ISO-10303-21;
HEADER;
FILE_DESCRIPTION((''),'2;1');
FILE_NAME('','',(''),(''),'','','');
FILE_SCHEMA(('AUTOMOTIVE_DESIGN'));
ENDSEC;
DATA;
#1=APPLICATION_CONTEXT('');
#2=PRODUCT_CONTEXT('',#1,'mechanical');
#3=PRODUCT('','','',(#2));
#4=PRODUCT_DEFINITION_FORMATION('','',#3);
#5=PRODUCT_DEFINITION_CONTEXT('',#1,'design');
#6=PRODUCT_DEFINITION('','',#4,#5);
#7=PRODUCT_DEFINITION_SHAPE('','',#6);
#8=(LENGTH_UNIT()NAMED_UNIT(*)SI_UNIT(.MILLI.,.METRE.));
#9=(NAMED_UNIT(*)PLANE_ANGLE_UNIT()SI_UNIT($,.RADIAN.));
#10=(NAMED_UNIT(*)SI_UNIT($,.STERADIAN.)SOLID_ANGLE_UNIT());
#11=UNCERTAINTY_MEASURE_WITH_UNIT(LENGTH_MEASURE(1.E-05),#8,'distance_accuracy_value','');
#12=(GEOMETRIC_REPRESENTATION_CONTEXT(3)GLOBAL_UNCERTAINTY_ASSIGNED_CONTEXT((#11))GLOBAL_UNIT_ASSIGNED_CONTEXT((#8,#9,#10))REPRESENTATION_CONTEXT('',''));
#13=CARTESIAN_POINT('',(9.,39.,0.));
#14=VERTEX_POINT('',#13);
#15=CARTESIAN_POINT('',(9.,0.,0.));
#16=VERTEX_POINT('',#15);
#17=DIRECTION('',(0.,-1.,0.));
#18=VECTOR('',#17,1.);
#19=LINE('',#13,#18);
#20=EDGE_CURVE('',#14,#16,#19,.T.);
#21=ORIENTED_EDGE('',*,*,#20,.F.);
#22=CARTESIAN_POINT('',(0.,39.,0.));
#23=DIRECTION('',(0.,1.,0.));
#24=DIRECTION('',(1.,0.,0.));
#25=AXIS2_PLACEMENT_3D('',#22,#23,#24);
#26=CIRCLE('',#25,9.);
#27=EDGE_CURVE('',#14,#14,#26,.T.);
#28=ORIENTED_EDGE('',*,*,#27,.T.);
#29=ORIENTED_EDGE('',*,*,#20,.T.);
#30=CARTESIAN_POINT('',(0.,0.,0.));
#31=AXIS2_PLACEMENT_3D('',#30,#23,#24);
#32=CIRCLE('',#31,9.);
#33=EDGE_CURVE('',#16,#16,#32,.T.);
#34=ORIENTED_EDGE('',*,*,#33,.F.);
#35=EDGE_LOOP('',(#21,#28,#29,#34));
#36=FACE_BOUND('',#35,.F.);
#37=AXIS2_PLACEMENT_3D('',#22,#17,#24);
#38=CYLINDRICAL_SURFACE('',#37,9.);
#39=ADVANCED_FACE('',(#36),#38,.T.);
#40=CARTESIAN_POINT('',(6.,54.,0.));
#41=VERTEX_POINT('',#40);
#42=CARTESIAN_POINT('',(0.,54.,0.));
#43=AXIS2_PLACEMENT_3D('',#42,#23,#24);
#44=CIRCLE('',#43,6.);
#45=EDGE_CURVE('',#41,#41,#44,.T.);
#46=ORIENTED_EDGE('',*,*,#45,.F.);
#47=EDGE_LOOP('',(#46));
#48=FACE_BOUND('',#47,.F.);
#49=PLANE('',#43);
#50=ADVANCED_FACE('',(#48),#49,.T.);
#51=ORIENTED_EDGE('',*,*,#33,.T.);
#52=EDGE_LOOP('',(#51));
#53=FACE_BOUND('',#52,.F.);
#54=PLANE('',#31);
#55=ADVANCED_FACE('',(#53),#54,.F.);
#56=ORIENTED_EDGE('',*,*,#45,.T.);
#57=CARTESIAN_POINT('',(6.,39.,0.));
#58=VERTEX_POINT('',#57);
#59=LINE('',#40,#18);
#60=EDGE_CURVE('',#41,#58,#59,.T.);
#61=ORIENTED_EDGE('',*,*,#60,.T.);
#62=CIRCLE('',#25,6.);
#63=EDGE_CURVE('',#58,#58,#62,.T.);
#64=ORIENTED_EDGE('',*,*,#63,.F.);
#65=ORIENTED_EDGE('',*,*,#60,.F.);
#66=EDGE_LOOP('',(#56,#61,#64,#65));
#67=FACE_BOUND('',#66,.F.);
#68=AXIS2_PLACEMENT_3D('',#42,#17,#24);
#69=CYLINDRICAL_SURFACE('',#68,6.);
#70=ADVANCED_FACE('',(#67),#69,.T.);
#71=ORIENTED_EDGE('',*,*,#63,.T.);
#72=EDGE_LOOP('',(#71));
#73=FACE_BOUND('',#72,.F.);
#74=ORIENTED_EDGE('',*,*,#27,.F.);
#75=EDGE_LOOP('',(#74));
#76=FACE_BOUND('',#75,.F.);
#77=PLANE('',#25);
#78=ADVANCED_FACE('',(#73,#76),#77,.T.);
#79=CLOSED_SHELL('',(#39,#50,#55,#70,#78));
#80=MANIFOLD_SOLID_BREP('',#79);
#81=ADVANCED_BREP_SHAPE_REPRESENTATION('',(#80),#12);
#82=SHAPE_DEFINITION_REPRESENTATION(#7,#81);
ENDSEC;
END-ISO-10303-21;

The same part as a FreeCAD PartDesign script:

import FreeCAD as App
import Part
import Sketcher

V = App.Vector


def add_polygon(sketch, points):
    """Adds a closed chain of lines whose ends are joined by coincident constraints."""
    first, n = sketch.GeometryCount, len(points)
    for a, b in zip(points, points[1:] + points[:1]):
        sketch.addGeometry(Part.LineSegment(App.Vector(*a, 0), App.Vector(*b, 0)), False)
    for i in range(n):
        sketch.addConstraint(Sketcher.Constraint("Coincident", first + i, 2, first + (i + 1) % n, 1))

doc = App.newDocument("Part")
body = doc.addObject("PartDesign::Body", "Body")

sketch1 = doc.addObject("Sketcher::SketchObject", "Sketch")
body.addObject(sketch1)
sketch1.AttachmentSupport = (doc.XY_Plane, [""])
sketch1.MapMode = "FlatFace"
add_polygon(sketch1, [(0, 54), (0, 0), (9, 0), (9, 39), (6, 39), (6, 54)])
sketch1.addConstraint([
    Sketcher.Constraint("Vertical", 0),
    Sketcher.Constraint("Horizontal", 1),
    Sketcher.Constraint("Vertical", 2),
    Sketcher.Constraint("Horizontal", 3),
    Sketcher.Constraint("Vertical", 4),
    Sketcher.Constraint("Horizontal", 5),
    Sketcher.Constraint("Coincident", 0, 2, -1, 1),
    Sketcher.Constraint("DistanceY", 0, 2, 0, 1, 54.0),
    Sketcher.Constraint("DistanceY", 2, 1, 2, 2, 39.0),
    Sketcher.Constraint("DistanceX", 1, 1, 1, 2, 9.0),
    Sketcher.Constraint("DistanceX", 3, 2, 3, 1, 3.0),
])
revolution = doc.addObject("PartDesign::Revolution", "Revolution")
body.addObject(revolution)
revolution.Profile = sketch1
revolution.ReferenceAxis = (sketch1, ["V_Axis"])
revolution.Angle = 360

doc.recompute()
